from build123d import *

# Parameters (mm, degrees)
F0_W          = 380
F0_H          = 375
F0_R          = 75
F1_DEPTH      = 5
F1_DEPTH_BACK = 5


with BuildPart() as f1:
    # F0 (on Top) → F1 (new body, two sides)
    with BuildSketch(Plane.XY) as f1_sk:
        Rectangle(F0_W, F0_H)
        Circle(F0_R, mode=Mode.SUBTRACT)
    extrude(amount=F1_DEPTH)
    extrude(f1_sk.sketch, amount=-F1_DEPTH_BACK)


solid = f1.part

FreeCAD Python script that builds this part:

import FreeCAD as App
import Part
import Sketcher
from FreeCAD import Vector
Q = App.Units.Quantity


def add_polygon(sketch, points):
    """Adds a closed chain of lines whose ends are joined by coincident constraints."""
    first, n = sketch.GeometryCount, len(points)
    for a, b in zip(points, points[1:] + points[:1]):
        sketch.addGeometry(Part.LineSegment(App.Vector(*a, 0), App.Vector(*b, 0)), False)
    for i in range(n):
        sketch.addConstraint(Sketcher.Constraint("Coincident", first + i, 2, first + (i + 1) % n, 1))

doc = App.newDocument("Part")
body = doc.addObject("PartDesign::Body", "Body")

# Sketch on XY plane
sketch1 = doc.addObject("Sketcher::SketchObject", "Sketch")
body.addObject(sketch1)
sketch1.AttachmentSupport = (doc.XY_Plane, [""])
sketch1.MapMode = "FlatFace"
add_polygon(sketch1, [(-190, 188), (-190, -188), (190, -188), (190, 188)])  # lines 0-3
sketch1.addGeometry(Part.Circle(Vector(0, 0, 0), Vector(0, 0, 1), 75), False)  # 4
sketch1.addConstraint([
    Sketcher.Constraint("Vertical", 0),
    Sketcher.Constraint("Horizontal", 1),
    Sketcher.Constraint("Vertical", 2),
    Sketcher.Constraint("Horizontal", 3),
    Sketcher.Constraint("Coincident", 4, 3, -1, 1),
    Sketcher.Constraint("Symmetric", 0, 2, 2, 2, -1, 1),
    Sketcher.Constraint("Diameter", 4, Q("150 mm")),
    Sketcher.Constraint("DistanceX", 1, 1, 1, 2, Q("380 mm")),
    Sketcher.Constraint("DistanceY", 0, 2, 0, 1, Q("375 mm")),
])
pad1 = doc.addObject("PartDesign::Pad", "Pad")
body.addObject(pad1)
pad1.Profile = sketch1
pad1.Type = "TwoLengths"
pad1.Length = 5
pad1.Length2 = 5

doc.recompute()
